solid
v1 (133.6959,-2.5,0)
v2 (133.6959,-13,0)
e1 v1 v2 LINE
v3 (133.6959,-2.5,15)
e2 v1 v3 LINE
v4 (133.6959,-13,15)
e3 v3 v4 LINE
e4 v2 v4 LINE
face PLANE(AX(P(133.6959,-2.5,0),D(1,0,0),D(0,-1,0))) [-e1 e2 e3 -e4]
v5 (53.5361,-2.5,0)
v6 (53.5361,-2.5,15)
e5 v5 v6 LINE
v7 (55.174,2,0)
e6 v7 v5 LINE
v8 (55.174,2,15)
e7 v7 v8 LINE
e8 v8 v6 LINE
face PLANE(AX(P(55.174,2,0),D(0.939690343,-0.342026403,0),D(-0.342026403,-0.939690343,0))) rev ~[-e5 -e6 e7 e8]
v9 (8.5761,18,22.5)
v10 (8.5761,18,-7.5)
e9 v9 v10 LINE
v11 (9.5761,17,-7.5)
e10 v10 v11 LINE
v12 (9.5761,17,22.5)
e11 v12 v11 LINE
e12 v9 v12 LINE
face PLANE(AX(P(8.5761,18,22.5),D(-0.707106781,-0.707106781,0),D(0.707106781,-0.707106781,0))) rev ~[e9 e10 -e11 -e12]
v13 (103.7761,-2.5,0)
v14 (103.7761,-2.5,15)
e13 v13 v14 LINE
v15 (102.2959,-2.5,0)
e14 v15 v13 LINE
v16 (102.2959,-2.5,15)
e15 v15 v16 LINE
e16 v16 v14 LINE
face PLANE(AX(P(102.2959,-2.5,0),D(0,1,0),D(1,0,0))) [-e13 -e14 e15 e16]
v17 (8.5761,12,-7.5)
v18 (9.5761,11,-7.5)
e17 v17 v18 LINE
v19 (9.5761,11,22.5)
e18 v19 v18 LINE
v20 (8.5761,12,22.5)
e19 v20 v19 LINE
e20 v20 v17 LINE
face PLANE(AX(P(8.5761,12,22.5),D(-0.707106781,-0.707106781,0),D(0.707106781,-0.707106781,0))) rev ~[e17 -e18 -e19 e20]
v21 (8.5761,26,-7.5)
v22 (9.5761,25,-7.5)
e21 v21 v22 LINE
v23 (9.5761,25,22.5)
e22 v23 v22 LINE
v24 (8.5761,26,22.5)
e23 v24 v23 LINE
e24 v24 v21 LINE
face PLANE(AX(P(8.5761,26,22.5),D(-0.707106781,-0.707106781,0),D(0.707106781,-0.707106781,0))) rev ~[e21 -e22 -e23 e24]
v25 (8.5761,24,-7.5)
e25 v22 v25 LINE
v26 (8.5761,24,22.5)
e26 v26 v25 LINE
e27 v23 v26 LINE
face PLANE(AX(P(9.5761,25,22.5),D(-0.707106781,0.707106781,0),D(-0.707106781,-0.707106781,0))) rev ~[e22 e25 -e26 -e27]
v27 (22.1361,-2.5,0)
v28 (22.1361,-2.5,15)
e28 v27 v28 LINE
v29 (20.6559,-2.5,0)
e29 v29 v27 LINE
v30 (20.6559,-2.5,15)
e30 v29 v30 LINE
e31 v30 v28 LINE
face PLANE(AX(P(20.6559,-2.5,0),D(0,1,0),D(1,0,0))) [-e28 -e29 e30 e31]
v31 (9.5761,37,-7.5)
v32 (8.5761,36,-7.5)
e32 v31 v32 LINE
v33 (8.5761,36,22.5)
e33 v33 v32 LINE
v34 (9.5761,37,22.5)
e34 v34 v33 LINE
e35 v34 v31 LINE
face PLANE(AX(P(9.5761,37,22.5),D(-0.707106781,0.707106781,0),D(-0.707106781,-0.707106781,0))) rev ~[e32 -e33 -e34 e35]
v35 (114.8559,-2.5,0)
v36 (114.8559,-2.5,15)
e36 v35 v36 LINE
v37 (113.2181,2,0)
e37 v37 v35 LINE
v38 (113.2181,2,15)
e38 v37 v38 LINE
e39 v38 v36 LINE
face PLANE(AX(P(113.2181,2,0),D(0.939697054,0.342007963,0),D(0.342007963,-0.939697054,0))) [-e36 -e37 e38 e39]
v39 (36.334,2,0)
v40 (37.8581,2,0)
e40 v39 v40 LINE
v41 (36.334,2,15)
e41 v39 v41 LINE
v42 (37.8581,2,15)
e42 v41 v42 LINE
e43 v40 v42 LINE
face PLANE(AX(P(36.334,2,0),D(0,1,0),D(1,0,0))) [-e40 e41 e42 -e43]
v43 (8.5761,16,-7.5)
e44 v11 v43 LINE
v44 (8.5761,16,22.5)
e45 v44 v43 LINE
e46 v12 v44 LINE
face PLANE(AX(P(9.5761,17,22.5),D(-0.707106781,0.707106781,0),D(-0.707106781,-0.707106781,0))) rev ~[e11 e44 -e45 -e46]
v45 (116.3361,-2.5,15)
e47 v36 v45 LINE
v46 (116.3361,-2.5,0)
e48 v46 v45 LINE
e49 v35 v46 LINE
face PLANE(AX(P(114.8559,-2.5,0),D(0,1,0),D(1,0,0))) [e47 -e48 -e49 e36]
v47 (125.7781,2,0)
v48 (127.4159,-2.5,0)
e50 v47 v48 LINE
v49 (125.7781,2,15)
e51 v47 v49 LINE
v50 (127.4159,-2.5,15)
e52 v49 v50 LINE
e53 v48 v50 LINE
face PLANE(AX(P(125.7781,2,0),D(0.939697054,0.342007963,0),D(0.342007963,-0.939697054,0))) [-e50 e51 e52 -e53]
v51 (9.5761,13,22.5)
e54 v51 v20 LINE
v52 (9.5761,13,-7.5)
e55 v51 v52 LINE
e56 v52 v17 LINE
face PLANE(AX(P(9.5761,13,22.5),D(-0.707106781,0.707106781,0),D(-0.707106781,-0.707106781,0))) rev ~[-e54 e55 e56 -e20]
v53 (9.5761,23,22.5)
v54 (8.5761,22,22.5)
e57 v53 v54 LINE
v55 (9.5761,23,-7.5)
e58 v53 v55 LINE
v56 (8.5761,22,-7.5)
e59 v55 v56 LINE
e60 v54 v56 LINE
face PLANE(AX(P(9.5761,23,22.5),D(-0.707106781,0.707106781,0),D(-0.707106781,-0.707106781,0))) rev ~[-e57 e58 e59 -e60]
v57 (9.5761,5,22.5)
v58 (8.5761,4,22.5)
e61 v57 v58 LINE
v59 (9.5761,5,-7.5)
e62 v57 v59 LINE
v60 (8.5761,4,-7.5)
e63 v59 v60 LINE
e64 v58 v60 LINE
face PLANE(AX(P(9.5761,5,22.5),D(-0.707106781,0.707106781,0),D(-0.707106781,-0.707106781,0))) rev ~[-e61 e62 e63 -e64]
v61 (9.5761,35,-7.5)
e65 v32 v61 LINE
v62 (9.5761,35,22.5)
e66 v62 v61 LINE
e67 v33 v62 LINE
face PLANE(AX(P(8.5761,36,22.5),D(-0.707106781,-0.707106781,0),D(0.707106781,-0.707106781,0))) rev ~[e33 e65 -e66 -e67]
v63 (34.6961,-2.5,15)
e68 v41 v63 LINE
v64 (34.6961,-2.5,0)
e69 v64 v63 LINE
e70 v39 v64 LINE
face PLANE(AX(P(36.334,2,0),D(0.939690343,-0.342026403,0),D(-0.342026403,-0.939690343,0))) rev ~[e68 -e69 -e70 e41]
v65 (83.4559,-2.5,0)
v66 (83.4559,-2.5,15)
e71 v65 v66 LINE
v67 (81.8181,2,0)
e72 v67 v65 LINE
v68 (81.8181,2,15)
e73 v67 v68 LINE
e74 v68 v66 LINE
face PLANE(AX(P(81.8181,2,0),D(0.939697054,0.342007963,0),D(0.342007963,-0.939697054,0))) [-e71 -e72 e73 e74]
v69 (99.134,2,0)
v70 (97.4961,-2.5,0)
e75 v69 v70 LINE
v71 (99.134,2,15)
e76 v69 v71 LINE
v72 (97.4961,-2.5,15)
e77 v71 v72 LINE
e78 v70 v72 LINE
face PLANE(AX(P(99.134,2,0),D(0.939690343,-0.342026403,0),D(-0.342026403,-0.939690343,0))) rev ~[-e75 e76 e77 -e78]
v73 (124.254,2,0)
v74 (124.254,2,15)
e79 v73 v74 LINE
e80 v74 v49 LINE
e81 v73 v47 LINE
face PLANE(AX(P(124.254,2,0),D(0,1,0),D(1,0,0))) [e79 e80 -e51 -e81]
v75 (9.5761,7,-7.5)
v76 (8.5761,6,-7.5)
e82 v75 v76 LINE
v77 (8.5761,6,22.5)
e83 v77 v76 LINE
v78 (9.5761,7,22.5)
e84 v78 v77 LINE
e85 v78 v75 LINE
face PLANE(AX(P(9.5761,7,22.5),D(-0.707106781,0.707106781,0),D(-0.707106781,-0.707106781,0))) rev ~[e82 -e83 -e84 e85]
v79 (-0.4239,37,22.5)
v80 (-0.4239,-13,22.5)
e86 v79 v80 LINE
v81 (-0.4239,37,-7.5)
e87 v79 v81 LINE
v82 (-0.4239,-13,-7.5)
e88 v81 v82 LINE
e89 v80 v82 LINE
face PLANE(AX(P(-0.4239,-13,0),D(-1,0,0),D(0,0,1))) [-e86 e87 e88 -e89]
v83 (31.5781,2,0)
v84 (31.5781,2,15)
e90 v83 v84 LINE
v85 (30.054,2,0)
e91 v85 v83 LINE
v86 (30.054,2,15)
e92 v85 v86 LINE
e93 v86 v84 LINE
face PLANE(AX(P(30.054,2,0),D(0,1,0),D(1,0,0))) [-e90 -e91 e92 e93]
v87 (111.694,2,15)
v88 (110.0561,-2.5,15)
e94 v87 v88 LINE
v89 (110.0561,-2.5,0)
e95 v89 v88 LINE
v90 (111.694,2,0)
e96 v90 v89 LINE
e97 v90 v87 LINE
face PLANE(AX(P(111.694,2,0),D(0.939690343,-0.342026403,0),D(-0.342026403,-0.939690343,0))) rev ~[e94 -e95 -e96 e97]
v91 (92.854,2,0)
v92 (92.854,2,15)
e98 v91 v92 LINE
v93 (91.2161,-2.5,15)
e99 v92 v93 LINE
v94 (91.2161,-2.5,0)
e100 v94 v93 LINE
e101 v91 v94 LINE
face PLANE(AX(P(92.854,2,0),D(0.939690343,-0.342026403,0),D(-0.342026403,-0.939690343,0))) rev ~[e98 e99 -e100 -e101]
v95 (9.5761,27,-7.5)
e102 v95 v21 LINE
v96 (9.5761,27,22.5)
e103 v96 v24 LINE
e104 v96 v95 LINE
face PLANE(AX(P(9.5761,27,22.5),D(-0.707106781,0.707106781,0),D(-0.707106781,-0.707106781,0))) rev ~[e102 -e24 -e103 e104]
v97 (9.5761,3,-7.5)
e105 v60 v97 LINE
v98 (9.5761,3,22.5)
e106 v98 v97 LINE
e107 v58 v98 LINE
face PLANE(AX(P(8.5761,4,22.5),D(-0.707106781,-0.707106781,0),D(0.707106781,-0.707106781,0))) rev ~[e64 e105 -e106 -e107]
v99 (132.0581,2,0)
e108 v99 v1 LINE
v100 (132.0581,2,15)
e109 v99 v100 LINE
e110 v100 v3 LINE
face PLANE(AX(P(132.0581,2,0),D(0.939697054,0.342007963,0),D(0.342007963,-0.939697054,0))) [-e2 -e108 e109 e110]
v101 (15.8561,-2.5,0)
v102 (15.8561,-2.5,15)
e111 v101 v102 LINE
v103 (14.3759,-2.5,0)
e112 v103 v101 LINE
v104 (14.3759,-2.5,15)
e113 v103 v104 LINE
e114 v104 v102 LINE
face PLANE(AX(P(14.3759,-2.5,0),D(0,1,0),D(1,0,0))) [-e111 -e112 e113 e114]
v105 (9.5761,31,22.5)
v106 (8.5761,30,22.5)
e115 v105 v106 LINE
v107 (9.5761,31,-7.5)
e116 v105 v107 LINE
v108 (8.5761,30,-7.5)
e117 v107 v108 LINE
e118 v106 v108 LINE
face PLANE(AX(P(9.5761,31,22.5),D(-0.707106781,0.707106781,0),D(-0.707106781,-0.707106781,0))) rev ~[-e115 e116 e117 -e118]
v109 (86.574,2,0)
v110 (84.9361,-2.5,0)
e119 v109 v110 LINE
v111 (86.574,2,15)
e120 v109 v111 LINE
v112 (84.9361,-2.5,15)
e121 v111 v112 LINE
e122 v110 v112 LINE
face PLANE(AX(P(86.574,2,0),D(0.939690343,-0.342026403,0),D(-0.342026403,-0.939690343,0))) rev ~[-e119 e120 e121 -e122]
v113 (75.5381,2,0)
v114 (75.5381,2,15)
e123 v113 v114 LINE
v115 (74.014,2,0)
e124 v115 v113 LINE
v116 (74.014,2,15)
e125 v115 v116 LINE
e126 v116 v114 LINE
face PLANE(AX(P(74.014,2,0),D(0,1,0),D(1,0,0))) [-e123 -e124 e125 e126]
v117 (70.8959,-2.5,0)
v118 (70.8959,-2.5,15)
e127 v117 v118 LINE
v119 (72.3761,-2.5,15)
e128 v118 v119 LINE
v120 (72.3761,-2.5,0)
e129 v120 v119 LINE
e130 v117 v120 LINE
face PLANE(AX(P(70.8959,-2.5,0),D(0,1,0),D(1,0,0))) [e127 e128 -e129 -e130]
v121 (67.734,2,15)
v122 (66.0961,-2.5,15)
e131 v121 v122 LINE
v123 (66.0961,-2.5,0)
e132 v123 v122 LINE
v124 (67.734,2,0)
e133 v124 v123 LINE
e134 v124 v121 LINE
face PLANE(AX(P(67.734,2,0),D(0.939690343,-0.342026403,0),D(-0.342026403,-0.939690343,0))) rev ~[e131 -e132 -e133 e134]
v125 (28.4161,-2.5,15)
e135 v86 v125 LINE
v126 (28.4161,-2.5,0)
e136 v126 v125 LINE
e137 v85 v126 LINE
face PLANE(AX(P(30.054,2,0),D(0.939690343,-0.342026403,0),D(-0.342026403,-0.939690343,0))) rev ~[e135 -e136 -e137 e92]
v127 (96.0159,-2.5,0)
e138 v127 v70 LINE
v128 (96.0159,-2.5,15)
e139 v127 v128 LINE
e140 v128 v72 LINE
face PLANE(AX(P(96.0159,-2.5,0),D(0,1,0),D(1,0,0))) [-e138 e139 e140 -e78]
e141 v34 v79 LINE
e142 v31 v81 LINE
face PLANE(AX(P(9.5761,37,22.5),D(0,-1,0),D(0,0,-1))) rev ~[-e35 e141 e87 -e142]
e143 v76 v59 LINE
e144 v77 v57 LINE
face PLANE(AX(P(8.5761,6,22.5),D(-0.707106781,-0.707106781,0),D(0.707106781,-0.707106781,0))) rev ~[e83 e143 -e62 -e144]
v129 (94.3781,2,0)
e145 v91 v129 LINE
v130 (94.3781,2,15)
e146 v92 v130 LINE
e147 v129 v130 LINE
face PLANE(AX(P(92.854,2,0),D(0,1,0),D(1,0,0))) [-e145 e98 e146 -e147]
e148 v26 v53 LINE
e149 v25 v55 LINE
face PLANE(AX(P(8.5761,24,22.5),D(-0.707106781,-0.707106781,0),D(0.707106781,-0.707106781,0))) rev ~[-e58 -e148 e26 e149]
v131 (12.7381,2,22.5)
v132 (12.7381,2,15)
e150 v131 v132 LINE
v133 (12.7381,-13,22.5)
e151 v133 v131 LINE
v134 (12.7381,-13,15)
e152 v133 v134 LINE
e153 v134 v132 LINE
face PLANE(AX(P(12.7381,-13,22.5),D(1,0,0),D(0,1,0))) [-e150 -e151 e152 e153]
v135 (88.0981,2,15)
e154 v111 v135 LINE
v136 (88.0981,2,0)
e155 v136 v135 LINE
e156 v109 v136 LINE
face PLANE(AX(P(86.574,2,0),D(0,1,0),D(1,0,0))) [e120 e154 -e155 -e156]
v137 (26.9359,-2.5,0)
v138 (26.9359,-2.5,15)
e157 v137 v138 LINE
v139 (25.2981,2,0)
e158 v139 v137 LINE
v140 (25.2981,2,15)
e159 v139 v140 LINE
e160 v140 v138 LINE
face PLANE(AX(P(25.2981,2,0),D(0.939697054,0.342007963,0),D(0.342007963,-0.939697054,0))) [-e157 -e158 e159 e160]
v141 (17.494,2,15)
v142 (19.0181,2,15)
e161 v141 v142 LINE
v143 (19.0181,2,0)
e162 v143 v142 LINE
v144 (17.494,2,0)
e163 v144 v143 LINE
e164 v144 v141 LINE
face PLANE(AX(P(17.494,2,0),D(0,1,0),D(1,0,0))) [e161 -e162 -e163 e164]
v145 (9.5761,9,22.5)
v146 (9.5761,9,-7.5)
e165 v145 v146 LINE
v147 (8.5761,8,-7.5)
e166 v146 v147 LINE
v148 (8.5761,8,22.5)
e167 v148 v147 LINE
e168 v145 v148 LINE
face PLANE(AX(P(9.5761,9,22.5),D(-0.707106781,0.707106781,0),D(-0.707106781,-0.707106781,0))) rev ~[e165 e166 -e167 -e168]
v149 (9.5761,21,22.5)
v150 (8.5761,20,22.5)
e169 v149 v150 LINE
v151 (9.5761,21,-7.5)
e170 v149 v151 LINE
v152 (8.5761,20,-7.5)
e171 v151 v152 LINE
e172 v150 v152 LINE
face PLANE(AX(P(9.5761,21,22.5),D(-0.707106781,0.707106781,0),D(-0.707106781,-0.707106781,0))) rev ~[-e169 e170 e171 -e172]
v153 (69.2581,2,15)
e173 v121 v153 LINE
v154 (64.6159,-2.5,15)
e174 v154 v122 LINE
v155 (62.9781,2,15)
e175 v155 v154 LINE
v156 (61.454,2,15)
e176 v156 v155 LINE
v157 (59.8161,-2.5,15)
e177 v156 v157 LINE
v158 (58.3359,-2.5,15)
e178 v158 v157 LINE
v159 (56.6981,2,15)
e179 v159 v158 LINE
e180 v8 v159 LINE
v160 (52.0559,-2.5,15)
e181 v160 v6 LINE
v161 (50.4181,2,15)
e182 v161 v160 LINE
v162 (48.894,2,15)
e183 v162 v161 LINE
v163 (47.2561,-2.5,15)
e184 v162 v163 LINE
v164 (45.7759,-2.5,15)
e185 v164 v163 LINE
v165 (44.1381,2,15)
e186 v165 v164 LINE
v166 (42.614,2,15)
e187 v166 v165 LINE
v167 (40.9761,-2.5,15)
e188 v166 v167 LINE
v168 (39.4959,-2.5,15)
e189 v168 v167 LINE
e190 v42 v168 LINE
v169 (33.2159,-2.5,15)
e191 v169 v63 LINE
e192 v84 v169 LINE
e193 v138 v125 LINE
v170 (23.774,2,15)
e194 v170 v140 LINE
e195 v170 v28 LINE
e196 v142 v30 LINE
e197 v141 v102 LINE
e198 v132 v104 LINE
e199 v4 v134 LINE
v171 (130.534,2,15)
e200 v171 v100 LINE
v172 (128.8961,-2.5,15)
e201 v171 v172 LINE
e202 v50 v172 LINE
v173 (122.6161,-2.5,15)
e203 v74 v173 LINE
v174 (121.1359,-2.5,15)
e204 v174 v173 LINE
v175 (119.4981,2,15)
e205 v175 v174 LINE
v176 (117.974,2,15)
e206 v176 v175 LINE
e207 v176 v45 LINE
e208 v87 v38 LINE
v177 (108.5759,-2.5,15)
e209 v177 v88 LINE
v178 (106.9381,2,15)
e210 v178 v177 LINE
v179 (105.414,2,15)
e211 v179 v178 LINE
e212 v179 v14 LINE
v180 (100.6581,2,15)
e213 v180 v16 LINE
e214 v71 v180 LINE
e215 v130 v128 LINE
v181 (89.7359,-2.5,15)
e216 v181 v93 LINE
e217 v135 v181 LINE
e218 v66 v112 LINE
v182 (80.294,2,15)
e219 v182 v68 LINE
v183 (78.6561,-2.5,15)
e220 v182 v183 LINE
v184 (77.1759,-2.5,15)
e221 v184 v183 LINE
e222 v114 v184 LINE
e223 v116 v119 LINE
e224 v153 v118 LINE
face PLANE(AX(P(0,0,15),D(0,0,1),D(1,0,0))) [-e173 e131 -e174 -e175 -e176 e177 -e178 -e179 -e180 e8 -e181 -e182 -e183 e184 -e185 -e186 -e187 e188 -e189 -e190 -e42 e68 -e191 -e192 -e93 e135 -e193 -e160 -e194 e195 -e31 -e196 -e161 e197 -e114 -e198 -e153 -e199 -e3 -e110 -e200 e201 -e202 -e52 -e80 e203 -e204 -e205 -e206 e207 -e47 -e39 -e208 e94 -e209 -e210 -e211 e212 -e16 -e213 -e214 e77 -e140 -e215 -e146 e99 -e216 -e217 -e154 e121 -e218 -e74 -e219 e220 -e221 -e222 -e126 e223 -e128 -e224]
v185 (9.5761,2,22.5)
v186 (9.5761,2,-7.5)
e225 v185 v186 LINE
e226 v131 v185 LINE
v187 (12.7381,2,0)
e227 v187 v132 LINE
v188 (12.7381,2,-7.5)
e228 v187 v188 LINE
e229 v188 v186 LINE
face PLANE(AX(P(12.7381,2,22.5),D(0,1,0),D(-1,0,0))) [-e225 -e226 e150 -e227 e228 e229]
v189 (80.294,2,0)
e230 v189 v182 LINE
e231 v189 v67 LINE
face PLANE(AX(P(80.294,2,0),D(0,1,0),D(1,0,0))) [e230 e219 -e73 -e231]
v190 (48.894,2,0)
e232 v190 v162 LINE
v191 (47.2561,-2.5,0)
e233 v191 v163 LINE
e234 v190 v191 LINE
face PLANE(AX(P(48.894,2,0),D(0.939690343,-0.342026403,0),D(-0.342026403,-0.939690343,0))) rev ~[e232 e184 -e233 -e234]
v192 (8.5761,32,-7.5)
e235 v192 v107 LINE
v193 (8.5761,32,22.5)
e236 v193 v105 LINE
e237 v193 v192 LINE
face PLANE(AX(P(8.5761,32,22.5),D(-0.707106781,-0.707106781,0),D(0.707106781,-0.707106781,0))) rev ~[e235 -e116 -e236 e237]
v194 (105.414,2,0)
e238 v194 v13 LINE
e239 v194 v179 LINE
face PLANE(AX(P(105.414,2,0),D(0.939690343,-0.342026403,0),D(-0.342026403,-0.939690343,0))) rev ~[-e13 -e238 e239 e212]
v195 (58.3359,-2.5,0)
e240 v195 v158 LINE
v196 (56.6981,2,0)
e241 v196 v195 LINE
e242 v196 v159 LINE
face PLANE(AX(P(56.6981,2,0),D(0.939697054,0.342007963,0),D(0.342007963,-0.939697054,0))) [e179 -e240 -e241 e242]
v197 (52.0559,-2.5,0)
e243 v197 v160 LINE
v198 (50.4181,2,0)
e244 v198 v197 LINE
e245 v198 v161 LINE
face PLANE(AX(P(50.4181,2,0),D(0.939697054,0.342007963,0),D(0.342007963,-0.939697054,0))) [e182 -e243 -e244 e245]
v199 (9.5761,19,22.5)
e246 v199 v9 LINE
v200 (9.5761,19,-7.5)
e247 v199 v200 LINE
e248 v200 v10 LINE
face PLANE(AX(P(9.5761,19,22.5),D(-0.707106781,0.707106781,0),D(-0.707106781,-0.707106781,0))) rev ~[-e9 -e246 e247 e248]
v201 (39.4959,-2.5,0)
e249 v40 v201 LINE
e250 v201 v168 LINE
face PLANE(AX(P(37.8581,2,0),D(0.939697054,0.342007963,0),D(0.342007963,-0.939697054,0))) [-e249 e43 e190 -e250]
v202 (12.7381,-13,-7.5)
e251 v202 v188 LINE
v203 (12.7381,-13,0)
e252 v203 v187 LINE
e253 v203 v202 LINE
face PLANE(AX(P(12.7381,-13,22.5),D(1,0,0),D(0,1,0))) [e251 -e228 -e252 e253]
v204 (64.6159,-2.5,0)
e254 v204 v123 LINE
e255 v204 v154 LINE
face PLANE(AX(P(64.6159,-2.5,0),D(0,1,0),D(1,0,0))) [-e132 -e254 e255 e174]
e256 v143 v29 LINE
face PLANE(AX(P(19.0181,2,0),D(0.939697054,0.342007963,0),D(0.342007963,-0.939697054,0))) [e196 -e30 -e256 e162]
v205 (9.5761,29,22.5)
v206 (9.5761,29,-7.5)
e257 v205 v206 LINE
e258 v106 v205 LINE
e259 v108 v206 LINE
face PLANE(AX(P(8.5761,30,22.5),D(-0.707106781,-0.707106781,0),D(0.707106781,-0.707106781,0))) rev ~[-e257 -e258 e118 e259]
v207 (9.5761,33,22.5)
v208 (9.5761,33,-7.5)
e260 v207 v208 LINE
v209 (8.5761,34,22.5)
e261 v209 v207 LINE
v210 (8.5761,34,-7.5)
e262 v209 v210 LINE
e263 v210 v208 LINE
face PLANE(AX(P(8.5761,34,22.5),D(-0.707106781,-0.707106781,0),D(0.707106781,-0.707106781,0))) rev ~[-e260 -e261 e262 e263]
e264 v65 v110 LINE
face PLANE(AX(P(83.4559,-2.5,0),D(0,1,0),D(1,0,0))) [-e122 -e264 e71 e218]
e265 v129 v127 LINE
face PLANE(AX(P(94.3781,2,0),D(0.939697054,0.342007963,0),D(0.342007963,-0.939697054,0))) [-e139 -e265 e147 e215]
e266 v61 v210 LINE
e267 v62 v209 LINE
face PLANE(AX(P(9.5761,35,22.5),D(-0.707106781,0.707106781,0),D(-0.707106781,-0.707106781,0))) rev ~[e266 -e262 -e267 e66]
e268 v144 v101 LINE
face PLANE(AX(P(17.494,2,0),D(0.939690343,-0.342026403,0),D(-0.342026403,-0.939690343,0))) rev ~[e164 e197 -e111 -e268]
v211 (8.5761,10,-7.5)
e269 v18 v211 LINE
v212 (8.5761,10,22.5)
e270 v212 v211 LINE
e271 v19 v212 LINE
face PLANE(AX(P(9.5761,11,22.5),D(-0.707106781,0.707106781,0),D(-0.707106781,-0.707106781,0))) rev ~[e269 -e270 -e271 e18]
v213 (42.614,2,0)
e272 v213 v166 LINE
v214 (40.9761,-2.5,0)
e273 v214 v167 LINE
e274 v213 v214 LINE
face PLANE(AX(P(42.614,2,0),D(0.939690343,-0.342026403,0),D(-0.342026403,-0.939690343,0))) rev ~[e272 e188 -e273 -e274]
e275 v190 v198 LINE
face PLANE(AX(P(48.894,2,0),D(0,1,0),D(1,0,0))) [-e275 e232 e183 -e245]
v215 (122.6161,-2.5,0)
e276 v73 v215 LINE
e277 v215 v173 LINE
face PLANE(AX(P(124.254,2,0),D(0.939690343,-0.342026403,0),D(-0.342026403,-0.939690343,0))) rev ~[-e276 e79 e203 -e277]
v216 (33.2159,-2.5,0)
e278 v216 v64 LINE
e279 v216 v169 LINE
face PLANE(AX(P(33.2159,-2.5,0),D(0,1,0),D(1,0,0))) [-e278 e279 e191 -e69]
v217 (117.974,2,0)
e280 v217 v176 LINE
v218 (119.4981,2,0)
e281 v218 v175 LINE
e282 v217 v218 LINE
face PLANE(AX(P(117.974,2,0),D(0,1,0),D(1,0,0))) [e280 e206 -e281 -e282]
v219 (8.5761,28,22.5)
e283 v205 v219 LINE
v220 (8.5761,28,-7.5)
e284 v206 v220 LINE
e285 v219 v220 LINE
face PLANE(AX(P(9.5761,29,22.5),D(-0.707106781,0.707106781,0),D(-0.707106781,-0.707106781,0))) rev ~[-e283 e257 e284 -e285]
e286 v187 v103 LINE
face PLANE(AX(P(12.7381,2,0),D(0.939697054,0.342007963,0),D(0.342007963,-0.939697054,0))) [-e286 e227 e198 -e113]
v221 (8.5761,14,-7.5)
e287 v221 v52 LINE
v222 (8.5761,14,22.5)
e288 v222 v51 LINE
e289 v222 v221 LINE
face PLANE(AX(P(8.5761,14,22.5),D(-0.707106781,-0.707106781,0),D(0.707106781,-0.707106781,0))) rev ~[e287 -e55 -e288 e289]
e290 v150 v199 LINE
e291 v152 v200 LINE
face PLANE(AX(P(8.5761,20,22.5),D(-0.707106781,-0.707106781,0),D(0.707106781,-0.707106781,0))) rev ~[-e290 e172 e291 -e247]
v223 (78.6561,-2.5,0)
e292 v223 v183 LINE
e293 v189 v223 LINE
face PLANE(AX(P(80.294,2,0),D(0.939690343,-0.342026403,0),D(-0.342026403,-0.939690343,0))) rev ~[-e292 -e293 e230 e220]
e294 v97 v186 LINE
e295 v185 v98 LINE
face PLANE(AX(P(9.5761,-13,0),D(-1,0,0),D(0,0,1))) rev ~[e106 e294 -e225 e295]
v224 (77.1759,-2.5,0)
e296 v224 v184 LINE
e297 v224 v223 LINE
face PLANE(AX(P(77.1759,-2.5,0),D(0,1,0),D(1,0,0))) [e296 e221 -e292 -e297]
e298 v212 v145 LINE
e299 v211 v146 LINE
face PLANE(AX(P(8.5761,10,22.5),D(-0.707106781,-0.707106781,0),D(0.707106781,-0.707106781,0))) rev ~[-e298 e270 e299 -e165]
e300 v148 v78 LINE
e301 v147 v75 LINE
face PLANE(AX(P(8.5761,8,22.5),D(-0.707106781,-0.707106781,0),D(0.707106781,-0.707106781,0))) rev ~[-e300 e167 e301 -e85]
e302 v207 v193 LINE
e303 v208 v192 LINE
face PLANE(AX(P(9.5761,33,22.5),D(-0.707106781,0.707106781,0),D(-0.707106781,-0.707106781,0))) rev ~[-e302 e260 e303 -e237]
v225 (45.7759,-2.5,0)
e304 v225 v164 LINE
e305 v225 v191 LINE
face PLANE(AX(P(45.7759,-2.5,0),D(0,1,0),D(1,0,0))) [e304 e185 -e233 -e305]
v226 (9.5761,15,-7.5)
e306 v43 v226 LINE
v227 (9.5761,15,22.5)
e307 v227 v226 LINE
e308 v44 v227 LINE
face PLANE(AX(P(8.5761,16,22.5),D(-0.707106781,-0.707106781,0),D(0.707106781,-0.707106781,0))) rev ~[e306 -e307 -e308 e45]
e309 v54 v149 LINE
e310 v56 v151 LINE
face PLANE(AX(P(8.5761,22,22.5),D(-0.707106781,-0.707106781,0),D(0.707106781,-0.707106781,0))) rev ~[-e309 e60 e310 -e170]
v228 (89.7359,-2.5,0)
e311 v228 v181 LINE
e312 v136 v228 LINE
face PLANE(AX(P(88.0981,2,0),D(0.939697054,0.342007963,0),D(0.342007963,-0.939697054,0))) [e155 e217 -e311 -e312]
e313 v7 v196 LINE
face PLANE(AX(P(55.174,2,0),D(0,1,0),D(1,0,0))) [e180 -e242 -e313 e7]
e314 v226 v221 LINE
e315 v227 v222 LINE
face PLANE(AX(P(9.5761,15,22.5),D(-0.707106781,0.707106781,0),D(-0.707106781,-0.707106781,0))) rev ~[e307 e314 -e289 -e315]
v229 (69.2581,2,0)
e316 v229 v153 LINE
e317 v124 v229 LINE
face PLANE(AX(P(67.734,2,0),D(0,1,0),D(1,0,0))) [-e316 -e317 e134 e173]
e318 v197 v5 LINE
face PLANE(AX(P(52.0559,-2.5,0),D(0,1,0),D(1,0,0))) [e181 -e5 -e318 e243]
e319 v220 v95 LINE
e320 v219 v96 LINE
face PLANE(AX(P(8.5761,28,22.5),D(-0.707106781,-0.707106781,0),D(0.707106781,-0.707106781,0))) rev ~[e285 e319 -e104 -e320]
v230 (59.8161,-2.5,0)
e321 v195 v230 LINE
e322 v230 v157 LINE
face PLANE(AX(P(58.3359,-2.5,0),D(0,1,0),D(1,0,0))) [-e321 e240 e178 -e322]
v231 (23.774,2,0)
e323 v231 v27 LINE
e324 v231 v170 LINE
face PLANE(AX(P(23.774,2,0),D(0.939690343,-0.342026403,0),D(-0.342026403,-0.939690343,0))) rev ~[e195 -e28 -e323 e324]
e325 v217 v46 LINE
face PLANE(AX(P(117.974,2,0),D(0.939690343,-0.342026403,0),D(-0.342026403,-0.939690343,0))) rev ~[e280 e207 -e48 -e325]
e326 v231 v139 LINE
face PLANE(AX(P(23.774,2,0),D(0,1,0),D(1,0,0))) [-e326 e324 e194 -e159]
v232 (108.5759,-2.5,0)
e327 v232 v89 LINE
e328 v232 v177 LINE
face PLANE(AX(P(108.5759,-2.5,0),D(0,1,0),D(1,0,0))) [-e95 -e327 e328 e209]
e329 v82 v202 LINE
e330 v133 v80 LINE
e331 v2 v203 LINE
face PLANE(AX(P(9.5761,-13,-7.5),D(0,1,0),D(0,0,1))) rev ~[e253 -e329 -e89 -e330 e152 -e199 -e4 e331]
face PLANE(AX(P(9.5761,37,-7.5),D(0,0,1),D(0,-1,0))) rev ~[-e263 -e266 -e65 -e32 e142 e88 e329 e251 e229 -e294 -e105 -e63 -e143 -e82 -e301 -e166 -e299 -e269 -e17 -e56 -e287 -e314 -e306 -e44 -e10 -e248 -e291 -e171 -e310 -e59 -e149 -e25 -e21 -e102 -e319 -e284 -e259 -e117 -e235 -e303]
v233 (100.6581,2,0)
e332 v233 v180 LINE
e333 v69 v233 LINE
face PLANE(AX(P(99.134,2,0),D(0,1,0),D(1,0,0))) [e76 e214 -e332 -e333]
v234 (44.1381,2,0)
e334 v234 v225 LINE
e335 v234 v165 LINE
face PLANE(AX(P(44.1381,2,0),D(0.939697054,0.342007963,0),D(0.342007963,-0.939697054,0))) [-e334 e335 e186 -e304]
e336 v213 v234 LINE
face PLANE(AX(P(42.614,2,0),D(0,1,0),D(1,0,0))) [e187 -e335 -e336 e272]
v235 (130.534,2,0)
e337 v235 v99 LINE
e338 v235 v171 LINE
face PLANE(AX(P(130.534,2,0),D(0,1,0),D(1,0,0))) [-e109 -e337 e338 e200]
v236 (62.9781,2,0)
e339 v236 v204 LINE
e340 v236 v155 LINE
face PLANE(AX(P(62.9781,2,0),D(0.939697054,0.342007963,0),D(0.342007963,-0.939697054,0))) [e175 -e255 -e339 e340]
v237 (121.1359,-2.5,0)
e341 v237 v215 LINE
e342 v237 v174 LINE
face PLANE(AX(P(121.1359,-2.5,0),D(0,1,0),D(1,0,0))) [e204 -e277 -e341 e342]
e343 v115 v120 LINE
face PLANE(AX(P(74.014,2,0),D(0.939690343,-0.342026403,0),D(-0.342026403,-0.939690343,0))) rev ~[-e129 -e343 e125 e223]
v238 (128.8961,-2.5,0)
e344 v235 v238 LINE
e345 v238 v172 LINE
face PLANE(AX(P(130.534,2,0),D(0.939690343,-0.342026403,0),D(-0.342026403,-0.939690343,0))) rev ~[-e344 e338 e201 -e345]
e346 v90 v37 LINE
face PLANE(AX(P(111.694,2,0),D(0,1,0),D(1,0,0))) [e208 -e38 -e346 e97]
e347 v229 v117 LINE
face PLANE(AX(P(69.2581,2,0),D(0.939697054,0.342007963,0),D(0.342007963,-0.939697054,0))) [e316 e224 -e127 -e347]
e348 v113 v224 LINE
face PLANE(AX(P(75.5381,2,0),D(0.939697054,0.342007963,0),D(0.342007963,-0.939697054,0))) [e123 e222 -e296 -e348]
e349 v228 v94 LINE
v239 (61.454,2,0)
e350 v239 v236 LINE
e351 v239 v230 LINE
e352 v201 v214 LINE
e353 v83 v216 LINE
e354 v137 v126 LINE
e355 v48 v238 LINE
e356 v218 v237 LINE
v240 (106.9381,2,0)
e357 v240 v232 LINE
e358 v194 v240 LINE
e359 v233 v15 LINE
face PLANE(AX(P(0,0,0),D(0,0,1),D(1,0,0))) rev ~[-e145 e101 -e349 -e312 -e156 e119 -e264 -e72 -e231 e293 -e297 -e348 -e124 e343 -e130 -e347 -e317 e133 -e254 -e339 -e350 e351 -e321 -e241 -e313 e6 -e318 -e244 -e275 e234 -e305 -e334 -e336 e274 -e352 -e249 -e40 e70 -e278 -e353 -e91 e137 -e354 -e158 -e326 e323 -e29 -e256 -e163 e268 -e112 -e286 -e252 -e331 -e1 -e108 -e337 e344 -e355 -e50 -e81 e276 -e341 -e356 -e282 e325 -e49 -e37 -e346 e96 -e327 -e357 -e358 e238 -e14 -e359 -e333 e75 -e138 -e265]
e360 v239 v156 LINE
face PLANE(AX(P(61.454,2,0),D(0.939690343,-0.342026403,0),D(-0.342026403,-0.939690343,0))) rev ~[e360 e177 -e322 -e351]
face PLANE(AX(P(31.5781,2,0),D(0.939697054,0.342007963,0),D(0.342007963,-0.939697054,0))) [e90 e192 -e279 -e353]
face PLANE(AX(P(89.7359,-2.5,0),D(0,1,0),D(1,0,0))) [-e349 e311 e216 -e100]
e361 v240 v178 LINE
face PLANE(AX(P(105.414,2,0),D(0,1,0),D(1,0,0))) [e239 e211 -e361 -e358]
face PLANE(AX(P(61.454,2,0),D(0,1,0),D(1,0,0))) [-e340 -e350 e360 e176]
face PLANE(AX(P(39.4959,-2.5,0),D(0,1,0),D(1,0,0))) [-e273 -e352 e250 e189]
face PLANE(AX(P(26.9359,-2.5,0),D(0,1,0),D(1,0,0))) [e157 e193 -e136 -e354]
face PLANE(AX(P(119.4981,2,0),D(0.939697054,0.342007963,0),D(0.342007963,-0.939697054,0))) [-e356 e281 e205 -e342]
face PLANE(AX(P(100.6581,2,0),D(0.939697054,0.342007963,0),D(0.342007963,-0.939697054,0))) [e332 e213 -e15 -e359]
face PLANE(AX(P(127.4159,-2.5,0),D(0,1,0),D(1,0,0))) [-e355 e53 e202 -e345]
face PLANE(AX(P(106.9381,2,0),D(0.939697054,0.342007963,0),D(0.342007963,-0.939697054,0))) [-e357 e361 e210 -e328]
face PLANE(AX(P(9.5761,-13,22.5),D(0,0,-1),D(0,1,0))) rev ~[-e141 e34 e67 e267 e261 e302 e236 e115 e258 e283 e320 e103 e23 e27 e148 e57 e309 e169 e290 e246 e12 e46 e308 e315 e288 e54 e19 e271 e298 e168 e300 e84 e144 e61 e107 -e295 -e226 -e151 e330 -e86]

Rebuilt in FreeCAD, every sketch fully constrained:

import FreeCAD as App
import Part
import Sketcher
from FreeCAD import Vector
Q = App.Units.Quantity

doc = App.newDocument("Part")
params = doc.addObject("Spreadsheet::Sheet", "Params")
for row, (alias, value) in enumerate([
    ("sketch1_height", "10.5 mm"),
    ("pad1_length", "15 mm"),
    ("sketch2_width", "50 mm"),
    ("sketch2_height", "30 mm"),
    ("pad2_length", "10 mm"),
    ("sketch3_height", "2 mm"),
    ("linearpattern_pitch", "2 mm"),
    ("sketch4_height", "15 mm"),
    ("pad3_length", "30 mm"),
], start=1):
    params.set(f"A{row}", alias)
    params.set(f"B{row}", "=" + value)
    params.setAlias(f"B{row}", alias)

body = doc.addObject("PartDesign::Body", "Body")

sketch1 = doc.addObject("Sketcher::SketchObject", "Sketch")
body.addObject(sketch1)
sketch1.AttachmentSupport = (doc.XY_Plane, [""])
sketch1.MapMode = "FlatFace"
sketch1.addGeometry([
    Part.LineSegment(Vector(12.7381, 2, 0), Vector(11.214, 2, 0)),
    Part.LineSegment(Vector(11.214, 2, 0), Vector(9.5761, -2.5, 0)),
    Part.LineSegment(Vector(9.5761, -2.5, 0), Vector(9.5761, -13, 0)),
    Part.LineSegment(Vector(9.5761, -13, 0), Vector(133.6959, -13, 0)),
    Part.LineSegment(Vector(133.6959, -13, 0), Vector(133.6959, -2.5, 0)),
    Part.LineSegment(Vector(133.6959, -2.5, 0), Vector(132.0581, 2, 0)),
    Part.LineSegment(Vector(132.0581, 2, 0), Vector(130.534, 2, 0)),
    Part.LineSegment(Vector(130.534, 2, 0), Vector(128.8961, -2.5, 0)),
    Part.LineSegment(Vector(128.8961, -2.5, 0), Vector(127.4159, -2.5, 0)),
    Part.LineSegment(Vector(127.4159, -2.5, 0), Vector(125.7781, 2, 0)),
    Part.LineSegment(Vector(125.7781, 2, 0), Vector(124.254, 2, 0)),
    Part.LineSegment(Vector(124.254, 2, 0), Vector(122.6161, -2.5, 0)),
    Part.LineSegment(Vector(122.6161, -2.5, 0), Vector(121.1359, -2.5, 0)),
    Part.LineSegment(Vector(121.1359, -2.5, 0), Vector(119.4981, 2, 0)),
    Part.LineSegment(Vector(119.4981, 2, 0), Vector(117.974, 2, 0)),
    Part.LineSegment(Vector(117.974, 2, 0), Vector(116.3361, -2.5, 0)),
    Part.LineSegment(Vector(116.3361, -2.5, 0), Vector(114.8559, -2.5, 0)),
    Part.LineSegment(Vector(114.8559, -2.5, 0), Vector(113.2181, 2, 0)),
    Part.LineSegment(Vector(113.2181, 2, 0), Vector(111.694, 2, 0)),
    Part.LineSegment(Vector(111.694, 2, 0), Vector(110.0561, -2.5, 0)),
    Part.LineSegment(Vector(110.0561, -2.5, 0), Vector(108.5759, -2.5, 0)),
    Part.LineSegment(Vector(108.5759, -2.5, 0), Vector(106.9381, 2, 0)),
    Part.LineSegment(Vector(106.9381, 2, 0), Vector(105.414, 2, 0)),
    Part.LineSegment(Vector(105.414, 2, 0), Vector(103.7761, -2.5, 0)),
    Part.LineSegment(Vector(103.7761, -2.5, 0), Vector(102.2959, -2.5, 0)),
    Part.LineSegment(Vector(102.2959, -2.5, 0), Vector(100.6581, 2, 0)),
    Part.LineSegment(Vector(100.6581, 2, 0), Vector(99.134, 2, 0)),
    Part.LineSegment(Vector(99.134, 2, 0), Vector(97.4961, -2.5, 0)),
    Part.LineSegment(Vector(97.4961, -2.5, 0), Vector(96.0159, -2.5, 0)),
    Part.LineSegment(Vector(96.0159, -2.5, 0), Vector(94.3781, 2, 0)),
    Part.LineSegment(Vector(94.3781, 2, 0), Vector(92.854, 2, 0)),
    Part.LineSegment(Vector(92.854, 2, 0), Vector(91.2161, -2.5, 0)),
    Part.LineSegment(Vector(91.2161, -2.5, 0), Vector(89.7359, -2.5, 0)),
    Part.LineSegment(Vector(89.7359, -2.5, 0), Vector(88.0981, 2, 0)),
    Part.LineSegment(Vector(88.0981, 2, 0), Vector(86.574, 2, 0)),
    Part.LineSegment(Vector(86.574, 2, 0), Vector(84.9361, -2.5, 0)),
    Part.LineSegment(Vector(84.9361, -2.5, 0), Vector(83.4559, -2.5, 0)),
    Part.LineSegment(Vector(83.4559, -2.5, 0), Vector(81.8181, 2, 0)),
    Part.LineSegment(Vector(81.8181, 2, 0), Vector(80.294, 2, 0)),
    Part.LineSegment(Vector(80.294, 2, 0), Vector(78.6561, -2.5, 0)),
    Part.LineSegment(Vector(78.6561, -2.5, 0), Vector(77.1759, -2.5, 0)),
    Part.LineSegment(Vector(77.1759, -2.5, 0), Vector(75.5381, 2, 0)),
    Part.LineSegment(Vector(75.5381, 2, 0), Vector(74.014, 2, 0)),
    Part.LineSegment(Vector(74.014, 2, 0), Vector(72.3761, -2.5, 0)),
    Part.LineSegment(Vector(72.3761, -2.5, 0), Vector(70.8959, -2.5, 0)),
    Part.LineSegment(Vector(70.8959, -2.5, 0), Vector(69.2581, 2, 0)),
    Part.LineSegment(Vector(69.2581, 2, 0), Vector(67.734, 2, 0)),
    Part.LineSegment(Vector(67.734, 2, 0), Vector(66.0961, -2.5, 0)),
    Part.LineSegment(Vector(66.0961, -2.5, 0), Vector(64.6159, -2.5, 0)),
    Part.LineSegment(Vector(64.6159, -2.5, 0), Vector(62.9781, 2, 0)),
    Part.LineSegment(Vector(62.9781, 2, 0), Vector(61.454, 2, 0)),
    Part.LineSegment(Vector(61.454, 2, 0), Vector(59.8161, -2.5, 0)),
    Part.LineSegment(Vector(59.8161, -2.5, 0), Vector(58.3359, -2.5, 0)),
    Part.LineSegment(Vector(58.3359, -2.5, 0), Vector(56.6981, 2, 0)),
    Part.LineSegment(Vector(56.6981, 2, 0), Vector(55.174, 2, 0)),
    Part.LineSegment(Vector(55.174, 2, 0), Vector(53.5361, -2.5, 0)),
    Part.LineSegment(Vector(53.5361, -2.5, 0), Vector(52.0559, -2.5, 0)),
    Part.LineSegment(Vector(52.0559, -2.5, 0), Vector(50.4181, 2, 0)),
    Part.LineSegment(Vector(50.4181, 2, 0), Vector(48.894, 2, 0)),
    Part.LineSegment(Vector(48.894, 2, 0), Vector(47.2561, -2.5, 0)),
    Part.LineSegment(Vector(47.2561, -2.5, 0), Vector(45.7759, -2.5, 0)),
    Part.LineSegment(Vector(45.7759, -2.5, 0), Vector(44.1381, 2, 0)),
    Part.LineSegment(Vector(44.1381, 2, 0), Vector(42.614, 2, 0)),
    Part.LineSegment(Vector(42.614, 2, 0), Vector(40.9761, -2.5, 0)),
    Part.LineSegment(Vector(40.9761, -2.5, 0), Vector(39.4959, -2.5, 0)),
    Part.LineSegment(Vector(39.4959, -2.5, 0), Vector(37.8581, 2, 0)),
    Part.LineSegment(Vector(37.8581, 2, 0), Vector(36.334, 2, 0)),
    Part.LineSegment(Vector(36.334, 2, 0), Vector(34.6961, -2.5, 0)),
    Part.LineSegment(Vector(34.6961, -2.5, 0), Vector(33.2159, -2.5, 0)),
    Part.LineSegment(Vector(33.2159, -2.5, 0), Vector(31.5781, 2, 0)),
    Part.LineSegment(Vector(31.5781, 2, 0), Vector(30.054, 2, 0)),
    Part.LineSegment(Vector(30.054, 2, 0), Vector(28.4161, -2.5, 0)),
    Part.LineSegment(Vector(28.4161, -2.5, 0), Vector(26.9359, -2.5, 0)),
    Part.LineSegment(Vector(26.9359, -2.5, 0), Vector(25.2981, 2, 0)),
    Part.LineSegment(Vector(25.2981, 2, 0), Vector(23.774, 2, 0)),
    Part.LineSegment(Vector(23.774, 2, 0), Vector(22.1361, -2.5, 0)),
    Part.LineSegment(Vector(22.1361, -2.5, 0), Vector(20.6559, -2.5, 0)),
    Part.LineSegment(Vector(20.6559, -2.5, 0), Vector(19.0181, 2, 0)),
    Part.LineSegment(Vector(19.0181, 2, 0), Vector(17.494, 2, 0)),
    Part.LineSegment(Vector(17.494, 2, 0), Vector(15.8561, -2.5, 0)),
    Part.LineSegment(Vector(15.8561, -2.5, 0), Vector(14.3759, -2.5, 0)),
    Part.LineSegment(Vector(14.3759, -2.5, 0), Vector(12.7381, 2, 0)),
], False)
sketch1.addConstraint([
    Sketcher.Constraint("Coincident", 0, 2, 1, 1),
    Sketcher.Constraint("Coincident", 1, 2, 2, 1),
    Sketcher.Constraint("Coincident", 2, 2, 3, 1),
    Sketcher.Constraint("Coincident", 3, 2, 4, 1),
    Sketcher.Constraint("Coincident", 4, 2, 5, 1),
    Sketcher.Constraint("Coincident", 5, 2, 6, 1),
    Sketcher.Constraint("Coincident", 6, 2, 7, 1),
    Sketcher.Constraint("Coincident", 7, 2, 8, 1),
    Sketcher.Constraint("Coincident", 8, 2, 9, 1),
    Sketcher.Constraint("Coincident", 9, 2, 10, 1),
    Sketcher.Constraint("Coincident", 10, 2, 11, 1),
    Sketcher.Constraint("Coincident", 11, 2, 12, 1),
    Sketcher.Constraint("Coincident", 12, 2, 13, 1),
    Sketcher.Constraint("Coincident", 13, 2, 14, 1),
    Sketcher.Constraint("Coincident", 14, 2, 15, 1),
    Sketcher.Constraint("Coincident", 15, 2, 16, 1),
    Sketcher.Constraint("Coincident", 16, 2, 17, 1),
    Sketcher.Constraint("Coincident", 17, 2, 18, 1),
    Sketcher.Constraint("Coincident", 18, 2, 19, 1),
    Sketcher.Constraint("Coincident", 19, 2, 20, 1),
    Sketcher.Constraint("Coincident", 20, 2, 21, 1),
    Sketcher.Constraint("Coincident", 21, 2, 22, 1),
    Sketcher.Constraint("Coincident", 22, 2, 23, 1),
    Sketcher.Constraint("Coincident", 23, 2, 24, 1),
    Sketcher.Constraint("Coincident", 24, 2, 25, 1),
    Sketcher.Constraint("Coincident", 25, 2, 26, 1),
    Sketcher.Constraint("Coincident", 26, 2, 27, 1),
    Sketcher.Constraint("Coincident", 27, 2, 28, 1),
    Sketcher.Constraint("Coincident", 28, 2, 29, 1),
    Sketcher.Constraint("Coincident", 29, 2, 30, 1),
    Sketcher.Constraint("Coincident", 30, 2, 31, 1),
    Sketcher.Constraint("Coincident", 31, 2, 32, 1),
    Sketcher.Constraint("Coincident", 32, 2, 33, 1),
    Sketcher.Constraint("Coincident", 33, 2, 34, 1),
    Sketcher.Constraint("Coincident", 34, 2, 35, 1),
    Sketcher.Constraint("Coincident", 35, 2, 36, 1),
    Sketcher.Constraint("Coincident", 36, 2, 37, 1),
    Sketcher.Constraint("Coincident", 37, 2, 38, 1),
    Sketcher.Constraint("Coincident", 38, 2, 39, 1),
    Sketcher.Constraint("Coincident", 39, 2, 40, 1),
    Sketcher.Constraint("Coincident", 40, 2, 41, 1),
    Sketcher.Constraint("Coincident", 41, 2, 42, 1),
    Sketcher.Constraint("Coincident", 42, 2, 43, 1),
    Sketcher.Constraint("Coincident", 43, 2, 44, 1),
    Sketcher.Constraint("Coincident", 44, 2, 45, 1),
    Sketcher.Constraint("Coincident", 45, 2, 46, 1),
    Sketcher.Constraint("Coincident", 46, 2, 47, 1),
    Sketcher.Constraint("Coincident", 47, 2, 48, 1),
    Sketcher.Constraint("Coincident", 48, 2, 49, 1),
    Sketcher.Constraint("Coincident", 49, 2, 50, 1),
    Sketcher.Constraint("Coincident", 50, 2, 51, 1),
    Sketcher.Constraint("Coincident", 51, 2, 52, 1),
    Sketcher.Constraint("Coincident", 52, 2, 53, 1),
    Sketcher.Constraint("Coincident", 53, 2, 54, 1),
    Sketcher.Constraint("Coincident", 54, 2, 55, 1),
    Sketcher.Constraint("Coincident", 55, 2, 56, 1),
    Sketcher.Constraint("Coincident", 56, 2, 57, 1),
    Sketcher.Constraint("Coincident", 57, 2, 58, 1),
    Sketcher.Constraint("Coincident", 58, 2, 59, 1),
    Sketcher.Constraint("Coincident", 59, 2, 60, 1),
    Sketcher.Constraint("Coincident", 60, 2, 61, 1),
    Sketcher.Constraint("Coincident", 61, 2, 62, 1),
    Sketcher.Constraint("Coincident", 62, 2, 63, 1),
    Sketcher.Constraint("Coincident", 63, 2, 64, 1),
    Sketcher.Constraint("Coincident", 64, 2, 65, 1),
    Sketcher.Constraint("Coincident", 65, 2, 66, 1),
    Sketcher.Constraint("Coincident", 66, 2, 67, 1),
    Sketcher.Constraint("Coincident", 67, 2, 68, 1),
    Sketcher.Constraint("Coincident", 68, 2, 69, 1),
    Sketcher.Constraint("Coincident", 69, 2, 70, 1),
    Sketcher.Constraint("Coincident", 70, 2, 71, 1),
    Sketcher.Constraint("Coincident", 71, 2, 72, 1),
    Sketcher.Constraint("Coincident", 72, 2, 73, 1),
    Sketcher.Constraint("Coincident", 73, 2, 74, 1),
    Sketcher.Constraint("Coincident", 74, 2, 75, 1),
    Sketcher.Constraint("Coincident", 75, 2, 76, 1),
    Sketcher.Constraint("Coincident", 76, 2, 77, 1),
    Sketcher.Constraint("Coincident", 77, 2, 78, 1),
    Sketcher.Constraint("Coincident", 78, 2, 79, 1),
    Sketcher.Constraint("Coincident", 79, 2, 80, 1),
    Sketcher.Constraint("Coincident", 80, 2, 81, 1),
    Sketcher.Constraint("Coincident", 81, 2, 0, 1),
    Sketcher.Constraint("Horizontal", 0),
    Sketcher.Constraint("Vertical", 2),
    Sketcher.Constraint("Horizontal", 3),
    Sketcher.Constraint("Vertical", 4),
    Sketcher.Constraint("Horizontal", 6),
    Sketcher.Constraint("Horizontal", 8),
    Sketcher.Constraint("Horizontal", 10),
    Sketcher.Constraint("Horizontal", 12),
    Sketcher.Constraint("Horizontal", 14),
    Sketcher.Constraint("Horizontal", 16),
    Sketcher.Constraint("Horizontal", 18),
    Sketcher.Constraint("Horizontal", 20),
    Sketcher.Constraint("Horizontal", 22),
    Sketcher.Constraint("Horizontal", 24),
    Sketcher.Constraint("Horizontal", 26),
    Sketcher.Constraint("Horizontal", 28),
    Sketcher.Constraint("Horizontal", 30),
    Sketcher.Constraint("Horizontal", 32),
    Sketcher.Constraint("Horizontal", 34),
    Sketcher.Constraint("Horizontal", 36),
    Sketcher.Constraint("Horizontal", 38),
    Sketcher.Constraint("Horizontal", 40),
    Sketcher.Constraint("Horizontal", 42),
    Sketcher.Constraint("Horizontal", 44),
    Sketcher.Constraint("Horizontal", 46),
    Sketcher.Constraint("Horizontal", 48),
    Sketcher.Constraint("Horizontal", 50),
    Sketcher.Constraint("Horizontal", 52),
    Sketcher.Constraint("Horizontal", 54),
    Sketcher.Constraint("Horizontal", 56),
    Sketcher.Constraint("Horizontal", 58),
    Sketcher.Constraint("Horizontal", 60),
    Sketcher.Constraint("Horizontal", 62),
    Sketcher.Constraint("Horizontal", 64),
    Sketcher.Constraint("Horizontal", 66),
    Sketcher.Constraint("Horizontal", 68),
    Sketcher.Constraint("Horizontal", 70),
    Sketcher.Constraint("Horizontal", 72),
    Sketcher.Constraint("Horizontal", 74),
    Sketcher.Constraint("Horizontal", 76),
    Sketcher.Constraint("Horizontal", 78),
    Sketcher.Constraint("Horizontal", 80),
    Sketcher.Constraint("Parallel", 1, 7),
    Sketcher.Constraint("Parallel", 5, 9),
    Sketcher.Constraint("Parallel", 7, 11),
    Sketcher.Constraint("Parallel", 9, 13),
    Sketcher.Constraint("Parallel", 11, 15),
    Sketcher.Constraint("Parallel", 13, 17),
    Sketcher.Constraint("Parallel", 15, 19),
    Sketcher.Constraint("Parallel", 17, 21),
    Sketcher.Constraint("Parallel", 19, 23),
    Sketcher.Constraint("Parallel", 21, 25),
    Sketcher.Constraint("Parallel", 23, 27),
    Sketcher.Constraint("Parallel", 25, 29),
    Sketcher.Constraint("Parallel", 27, 31),
    Sketcher.Constraint("Parallel", 29, 33),
    Sketcher.Constraint("Parallel", 31, 35),
    Sketcher.Constraint("Parallel", 33, 37),
    Sketcher.Constraint("Parallel", 35, 39),
    Sketcher.Constraint("Parallel", 37, 41),
    Sketcher.Constraint("Parallel", 39, 43),
    Sketcher.Constraint("Parallel", 41, 45),
    Sketcher.Constraint("Parallel", 43, 47),
    Sketcher.Constraint("Parallel", 45, 49),
    Sketcher.Constraint("Parallel", 47, 51),
    Sketcher.Constraint("Parallel", 49, 53),
    Sketcher.Constraint("Parallel", 51, 55),
    Sketcher.Constraint("Parallel", 53, 57),
    Sketcher.Constraint("Parallel", 55, 59),
    Sketcher.Constraint("Parallel", 57, 61),
    Sketcher.Constraint("Parallel", 59, 63),
    Sketcher.Constraint("Parallel", 61, 65),
    Sketcher.Constraint("Parallel", 63, 67),
    Sketcher.Constraint("Parallel", 65, 69),
    Sketcher.Constraint("Parallel", 67, 71),
    Sketcher.Constraint("Parallel", 69, 73),
    Sketcher.Constraint("Parallel", 71, 75),
    Sketcher.Constraint("Parallel", 73, 77),
    Sketcher.Constraint("Parallel", 75, 79),
    Sketcher.Constraint("Parallel", 77, 81),
    Sketcher.Constraint("Horizontal", 1, 2, 4, 2),
    Sketcher.Constraint("Horizontal", 0, 2, 5, 2),
    Sketcher.Constraint("Horizontal", 4, 2, 7, 2),
    Sketcher.Constraint("Horizontal", 6, 2, 9, 2),
    Sketcher.Constraint("Horizontal", 8, 2, 11, 2),
    Sketcher.Constraint("Horizontal", 10, 2, 13, 2),
    Sketcher.Constraint("Horizontal", 12, 2, 15, 2),
    Sketcher.Constraint("Horizontal", 14, 2, 17, 2),
    Sketcher.Constraint("Horizontal", 16, 2, 19, 2),
    Sketcher.Constraint("Horizontal", 18, 2, 21, 2),
    Sketcher.Constraint("Horizontal", 20, 2, 23, 2),
    Sketcher.Constraint("Horizontal", 22, 2, 25, 2),
    Sketcher.Constraint("Horizontal", 24, 2, 27, 2),
    Sketcher.Constraint("Horizontal", 26, 2, 29, 2),
    Sketcher.Constraint("Horizontal", 28, 2, 31, 2),
    Sketcher.Constraint("Horizontal", 30, 2, 33, 2),
    Sketcher.Constraint("Horizontal", 32, 2, 35, 2),
    Sketcher.Constraint("Horizontal", 34, 2, 37, 2),
    Sketcher.Constraint("Horizontal", 36, 2, 39, 2),
    Sketcher.Constraint("Horizontal", 38, 2, 41, 2),
    Sketcher.Constraint("Horizontal", 40, 2, 43, 2),
    Sketcher.Constraint("Horizontal", 42, 2, 45, 2),
    Sketcher.Constraint("Horizontal", 44, 2, 47, 2),
    Sketcher.Constraint("Horizontal", 46, 2, 49, 2),
    Sketcher.Constraint("Horizontal", 48, 2, 51, 2),
    Sketcher.Constraint("Horizontal", 50, 2, 53, 2),
    Sketcher.Constraint("Horizontal", 52, 2, 55, 2),
    Sketcher.Constraint("Horizontal", 54, 2, 57, 2),
    Sketcher.Constraint("Horizontal", 56, 2, 59, 2),
    Sketcher.Constraint("Horizontal", 58, 2, 61, 2),
    Sketcher.Constraint("Horizontal", 60, 2, 63, 2),
    Sketcher.Constraint("Horizontal", 62, 2, 65, 2),
    Sketcher.Constraint("Horizontal", 64, 2, 67, 2),
    Sketcher.Constraint("Horizontal", 66, 2, 69, 2),
    Sketcher.Constraint("Horizontal", 68, 2, 71, 2),
    Sketcher.Constraint("Horizontal", 70, 2, 73, 2),
    Sketcher.Constraint("Horizontal", 72, 2, 75, 2),
    Sketcher.Constraint("Horizontal", 74, 2, 77, 2),
    Sketcher.Constraint("Horizontal", 76, 2, 79, 2),
    Sketcher.Constraint("Equal", 0, 6),
    Sketcher.Constraint("Equal", 6, 10),
    Sketcher.Constraint("Equal", 8, 12),
    Sketcher.Constraint("Equal", 10, 14),
    Sketcher.Constraint("Equal", 12, 16),
    Sketcher.Constraint("Equal", 14, 18),
    Sketcher.Constraint("Equal", 16, 20),
    Sketcher.Constraint("Equal", 18, 22),
    Sketcher.Constraint("Equal", 20, 24),
    Sketcher.Constraint("Equal", 22, 26),
    Sketcher.Constraint("Equal", 24, 28),
    Sketcher.Constraint("Equal", 26, 30),
    Sketcher.Constraint("Equal", 28, 32),
    Sketcher.Constraint("Equal", 30, 34),
    Sketcher.Constraint("Equal", 32, 36),
    Sketcher.Constraint("Equal", 34, 38),
    Sketcher.Constraint("Equal", 36, 40),
    Sketcher.Constraint("Equal", 38, 42),
    Sketcher.Constraint("Equal", 40, 44),
    Sketcher.Constraint("Equal", 42, 46),
    Sketcher.Constraint("Equal", 44, 48),
    Sketcher.Constraint("Equal", 46, 50),
    Sketcher.Constraint("Equal", 48, 52),
    Sketcher.Constraint("Equal", 50, 54),
    Sketcher.Constraint("Equal", 52, 56),
    Sketcher.Constraint("Equal", 54, 58),
    Sketcher.Constraint("Equal", 56, 60),
    Sketcher.Constraint("Equal", 58, 62),
    Sketcher.Constraint("Equal", 60, 64),
    Sketcher.Constraint("Equal", 62, 66),
    Sketcher.Constraint("Equal", 64, 68),
    Sketcher.Constraint("Equal", 66, 70),
    Sketcher.Constraint("Equal", 68, 72),
    Sketcher.Constraint("Equal", 70, 74),
    Sketcher.Constraint("Equal", 72, 76),
    Sketcher.Constraint("Equal", 74, 78),
    Sketcher.Constraint("Equal", 76, 80),
    Sketcher.Constraint("Equal", 1, 5),
    Sketcher.Constraint("DistanceY", 2, 2, 2, 1, Q("10.5 mm")),
    Sketcher.Constraint("DistanceY", -1, 1, 0, 2, Q("2 mm")),
    Sketcher.Constraint("DistanceY", 1, 2, -1, 1, Q("2.5 mm")),
    Sketcher.Constraint("Angle", 1, Q("-110.0004 deg")),
    Sketcher.Constraint("DistanceX", 0, 2, 0, 1, Q("1.524 mm")),
    Sketcher.Constraint("DistanceX", 3, 1, 3, 2, Q("124.1198 mm")),
    Sketcher.Constraint("DistanceX", -1, 1, 0, 2, Q("11.214 mm")),
])
sketch1.setExpression("Constraints[239]", "Params.sketch1_height")
pad1 = doc.addObject("PartDesign::Pad", "Pad")
body.addObject(pad1)
pad1.Profile = sketch1
pad1.setExpression("Length", "Params.pad1_length")

sketch2 = doc.addObject("Sketcher::SketchObject", "Sketch001")
body.addObject(sketch2)
sketch2.AttachmentSupport = (doc.YZ_Plane, [""])
sketch2.MapMode = "FlatFace"
sketch2.AttachmentOffset = App.Placement(Vector(0, 0, 9.5761), App.Rotation())
sketch2.addGeometry([
    Part.LineSegment(Vector(-13, -7.5, 0), Vector(-13, 22.5, 0)),
    Part.LineSegment(Vector(-13, 22.5, 0), Vector(37, 22.5, 0)),
    Part.LineSegment(Vector(37, 22.5, 0), Vector(37, -7.5, 0)),
    Part.LineSegment(Vector(37, -7.5, 0), Vector(-13, -7.5, 0)),
], False)
sketch2.addConstraint([
    Sketcher.Constraint("Coincident", 0, 2, 1, 1),
    Sketcher.Constraint("Coincident", 1, 2, 2, 1),
    Sketcher.Constraint("Coincident", 2, 2, 3, 1),
    Sketcher.Constraint("Coincident", 3, 2, 0, 1),
    Sketcher.Constraint("Vertical", 0),
    Sketcher.Constraint("Horizontal", 1),
    Sketcher.Constraint("Vertical", 2),
    Sketcher.Constraint("Horizontal", 3),
    Sketcher.Constraint("DistanceX", 1, 1, 1, 2, Q("50 mm")),
    Sketcher.Constraint("DistanceY", 0, 1, 0, 2, Q("30 mm")),
    Sketcher.Constraint("DistanceX", 0, 2, -1, 1, Q("13 mm")),
    Sketcher.Constraint("DistanceY", -1, 1, 0, 2, Q("22.5 mm")),
])
sketch2.setExpression("Constraints[8]", "Params.sketch2_width")
sketch2.setExpression("Constraints[9]", "Params.sketch2_height")
pad2 = doc.addObject("PartDesign::Pad", "Pad001")
body.addObject(pad2)
pad2.Profile = sketch2
pad2.setExpression("Length", "Params.pad2_length")
pad2.Reversed = True

sketch3 = doc.addObject("Sketcher::SketchObject", "Sketch002")
body.addObject(sketch3)
sketch3.AttachmentSupport = (doc.XY_Plane, [""])
sketch3.MapMode = "FlatFace"
sketch3.AttachmentOffset = App.Placement(Vector(0, 0, 22.5), App.Rotation())
sketch3.addGeometry([
    Part.LineSegment(Vector(8.5761, 36, 0), Vector(9.5761, 35, 0)),
    Part.LineSegment(Vector(9.5761, 35, 0), Vector(9.5761, 37, 0)),
    Part.LineSegment(Vector(9.5761, 37, 0), Vector(8.5761, 36, 0)),
], False)
sketch3.addConstraint([
    Sketcher.Constraint("Coincident", 0, 2, 1, 1),
    Sketcher.Constraint("Coincident", 1, 2, 2, 1),
    Sketcher.Constraint("Coincident", 2, 2, 0, 1),
    Sketcher.Constraint("Vertical", 1),
    Sketcher.Constraint("Perpendicular", 0, 2),
    Sketcher.Constraint("Equal", 0, 2),
    Sketcher.Constraint("DistanceY", 1, 1, 1, 2, Q("2 mm")),
    Sketcher.Constraint("DistanceY", -1, 1, 0, 2, Q("35 mm")),
    Sketcher.Constraint("DistanceX", -1, 1, 0, 2, Q("9.576 mm")),
])
sketch3.setExpression("Constraints[6]", "Params.sketch3_height")
pocket1 = doc.addObject("PartDesign::Pocket", "Pocket")
body.addObject(pocket1)
pocket1.Profile = sketch3
pocket1.Type = "ThroughAll"
doc.recompute()

linearpattern = doc.addObject("PartDesign::LinearPattern", "LinearPattern")
body.addObject(linearpattern)
linearpattern.Originals = [pocket1]
linearpattern.Direction = (doc.Y_Axis, [""])
linearpattern.Mode = "offset"
linearpattern.setExpression("Offset", "Params.linearpattern_pitch")
linearpattern.Occurrences = 17
linearpattern.Reversed = True
body.Tip = linearpattern

sketch4 = doc.addObject("Sketcher::SketchObject", "Sketch003")
body.addObject(sketch4)
sketch4.AttachmentSupport = (doc.XY_Plane, [""])
sketch4.MapMode = "FlatFace"
sketch4.AttachmentOffset = App.Placement(Vector(0, 0, 22.5), App.Rotation())
sketch4.addGeometry([
    Part.LineSegment(Vector(-0.4239, 2, 0), Vector(-0.4239, -13, 0)),
    Part.LineSegment(Vector(-0.4239, -13, 0), Vector(12.7381, -13, 0)),
    Part.LineSegment(Vector(12.7381, -13, 0), Vector(12.7381, 2, 0)),
    Part.LineSegment(Vector(12.7381, 2, 0), Vector(-0.4239, 2, 0)),
], False)
sketch4.addConstraint([
    Sketcher.Constraint("Coincident", 0, 2, 1, 1),
    Sketcher.Constraint("Coincident", 1, 2, 2, 1),
    Sketcher.Constraint("Coincident", 2, 2, 3, 1),
    Sketcher.Constraint("Coincident", 3, 2, 0, 1),
    Sketcher.Constraint("Vertical", 0),
    Sketcher.Constraint("Horizontal", 1),
    Sketcher.Constraint("Vertical", 2),
    Sketcher.Constraint("Horizontal", 3),
    Sketcher.Constraint("DistanceY", 0, 2, 0, 1, Q("15 mm")),
    Sketcher.Constraint("DistanceY", 0, 2, -1, 1, Q("13 mm")),
    Sketcher.Constraint("DistanceX", 1, 1, 1, 2, Q("13.162 mm")),
    Sketcher.Constraint("DistanceX", 0, 2, -1, 1, Q("0.424 mm")),
])
sketch4.setExpression("Constraints[8]", "Params.sketch4_height")
pad3 = doc.addObject("PartDesign::Pad", "Pad002")
body.addObject(pad3)
pad3.Profile = sketch4
pad3.setExpression("Length", "Params.pad3_length")
pad3.Reversed = True

doc.recompute()
